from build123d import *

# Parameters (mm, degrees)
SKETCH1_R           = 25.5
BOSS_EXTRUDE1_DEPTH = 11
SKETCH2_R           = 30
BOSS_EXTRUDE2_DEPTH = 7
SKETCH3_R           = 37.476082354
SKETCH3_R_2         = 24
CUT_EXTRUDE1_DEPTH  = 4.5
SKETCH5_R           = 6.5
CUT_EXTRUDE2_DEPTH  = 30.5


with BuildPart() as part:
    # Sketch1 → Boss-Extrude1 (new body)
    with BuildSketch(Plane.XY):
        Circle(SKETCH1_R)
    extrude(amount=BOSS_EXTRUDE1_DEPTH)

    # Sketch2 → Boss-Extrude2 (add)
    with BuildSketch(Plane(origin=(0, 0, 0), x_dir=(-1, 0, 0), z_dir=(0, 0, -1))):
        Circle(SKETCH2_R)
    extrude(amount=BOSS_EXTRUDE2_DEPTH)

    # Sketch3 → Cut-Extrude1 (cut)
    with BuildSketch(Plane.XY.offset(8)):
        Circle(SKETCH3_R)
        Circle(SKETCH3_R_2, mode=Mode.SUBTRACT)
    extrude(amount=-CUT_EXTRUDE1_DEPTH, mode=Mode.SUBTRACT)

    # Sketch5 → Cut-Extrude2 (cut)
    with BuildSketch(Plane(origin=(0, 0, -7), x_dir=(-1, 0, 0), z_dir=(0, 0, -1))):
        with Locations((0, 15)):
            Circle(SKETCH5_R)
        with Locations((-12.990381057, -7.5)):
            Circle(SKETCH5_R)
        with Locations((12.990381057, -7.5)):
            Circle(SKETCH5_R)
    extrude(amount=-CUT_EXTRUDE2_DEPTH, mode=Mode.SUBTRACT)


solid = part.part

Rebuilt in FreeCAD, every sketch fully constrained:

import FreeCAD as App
import Part
import Sketcher

V = App.Vector

doc = App.newDocument("Part")
body = doc.addObject("PartDesign::Body", "Body")

sketch1 = doc.addObject("Sketcher::SketchObject", "Sketch")
body.addObject(sketch1)
sketch1.AttachmentSupport = (doc.XY_Plane, [""])
sketch1.MapMode = "FlatFace"
sketch1.addGeometry(Part.Circle(V(0, 0, 0), V(0, 0, 1), 26), False)
sketch1.addConstraint(Sketcher.Constraint("Coincident", 0, 3, -1, 1))
sketch1.addConstraint(Sketcher.Constraint("Diameter", 0, 51.0))
pad1 = doc.addObject("PartDesign::Pad", "Pad")
body.addObject(pad1)
pad1.Profile = sketch1
pad1.Length = 11

sketch2 = doc.addObject("Sketcher::SketchObject", "Sketch001")
body.addObject(sketch2)
sketch2.AttachmentSupport = (doc.XY_Plane, [""])
sketch2.MapMode = "FlatFace"
sketch2.addGeometry(Part.Circle(V(0, 0, 0), V(0, 0, 1), 30), False)
sketch2.addConstraint(Sketcher.Constraint("Coincident", 0, 3, -1, 1))
sketch2.addConstraint(Sketcher.Constraint("Diameter", 0, 60.0))
pad2 = doc.addObject("PartDesign::Pad", "Pad001")
body.addObject(pad2)
pad2.Profile = sketch2
pad2.Length = 7
pad2.Reversed = True

sketch3 = doc.addObject("Sketcher::SketchObject", "Sketch002")
body.addObject(sketch3)
sketch3.AttachmentSupport = (doc.XY_Plane, [""])
sketch3.MapMode = "FlatFace"
sketch3.AttachmentOffset = App.Placement(V(0, 0, 8), App.Rotation())
sketch3.addGeometry(Part.Circle(V(0, 0, 0), V(0, 0, 1), 37), False)
sketch3.addGeometry(Part.Circle(V(0, 0, 0), V(0, 0, 1), 24), False)
sketch3.addConstraint(Sketcher.Constraint("Coincident", 0, 3, -1, 1))
sketch3.addConstraint(Sketcher.Constraint("Coincident", 1, 3, -1, 1))
sketch3.addConstraint(Sketcher.Constraint("Diameter", 1, 48.0))
sketch3.addConstraint(Sketcher.Constraint("Diameter", 0, 74.952165))
pocket1 = doc.addObject("PartDesign::Pocket", "Pocket")
body.addObject(pocket1)
pocket1.Profile = sketch3
pocket1.Length = 4.5

sketch4 = doc.addObject("Sketcher::SketchObject", "Sketch003")
body.addObject(sketch4)
sketch4.AttachmentSupport = (doc.XY_Plane, [""])
sketch4.MapMode = "FlatFace"
sketch4.AttachmentOffset = App.Placement(V(0, 0, -7), App.Rotation())
sketch4.addGeometry(Part.Circle(V(0, 15, 0), V(0, 0, 1), 6), False)
sketch4.addGeometry(Part.Circle(V(13, -8, 0), V(0, 0, 1), 6), False)
sketch4.addGeometry(Part.Circle(V(-13, -8, 0), V(0, 0, 1), 6), False)
sketch4.addConstraint(Sketcher.Constraint("Equal", 0, 1))
sketch4.addConstraint(Sketcher.Constraint("Equal", 1, 2))
sketch4.addConstraint(Sketcher.Constraint("Symmetric", 1, 3, 2, 3, -2))
sketch4.addConstraint(Sketcher.Constraint("PointOnObject", 0, 3, -2))
sketch4.addConstraint(Sketcher.Constraint("Diameter", 0, 13.0))
sketch4.addConstraint(Sketcher.Constraint("DistanceY", -1, 1, 0, 3, 15.0))
sketch4.addConstraint(Sketcher.Constraint("DistanceY", 1, 3, -1, 1, 7.5))
sketch4.addConstraint(Sketcher.Constraint("DistanceX", -1, 1, 1, 3, 12.990381))
pocket2 = doc.addObject("PartDesign::Pocket", "Pocket001")
body.addObject(pocket2)
pocket2.Profile = sketch4
pocket2.Length = 30.5
pocket2.Reversed = True

doc.recompute()
